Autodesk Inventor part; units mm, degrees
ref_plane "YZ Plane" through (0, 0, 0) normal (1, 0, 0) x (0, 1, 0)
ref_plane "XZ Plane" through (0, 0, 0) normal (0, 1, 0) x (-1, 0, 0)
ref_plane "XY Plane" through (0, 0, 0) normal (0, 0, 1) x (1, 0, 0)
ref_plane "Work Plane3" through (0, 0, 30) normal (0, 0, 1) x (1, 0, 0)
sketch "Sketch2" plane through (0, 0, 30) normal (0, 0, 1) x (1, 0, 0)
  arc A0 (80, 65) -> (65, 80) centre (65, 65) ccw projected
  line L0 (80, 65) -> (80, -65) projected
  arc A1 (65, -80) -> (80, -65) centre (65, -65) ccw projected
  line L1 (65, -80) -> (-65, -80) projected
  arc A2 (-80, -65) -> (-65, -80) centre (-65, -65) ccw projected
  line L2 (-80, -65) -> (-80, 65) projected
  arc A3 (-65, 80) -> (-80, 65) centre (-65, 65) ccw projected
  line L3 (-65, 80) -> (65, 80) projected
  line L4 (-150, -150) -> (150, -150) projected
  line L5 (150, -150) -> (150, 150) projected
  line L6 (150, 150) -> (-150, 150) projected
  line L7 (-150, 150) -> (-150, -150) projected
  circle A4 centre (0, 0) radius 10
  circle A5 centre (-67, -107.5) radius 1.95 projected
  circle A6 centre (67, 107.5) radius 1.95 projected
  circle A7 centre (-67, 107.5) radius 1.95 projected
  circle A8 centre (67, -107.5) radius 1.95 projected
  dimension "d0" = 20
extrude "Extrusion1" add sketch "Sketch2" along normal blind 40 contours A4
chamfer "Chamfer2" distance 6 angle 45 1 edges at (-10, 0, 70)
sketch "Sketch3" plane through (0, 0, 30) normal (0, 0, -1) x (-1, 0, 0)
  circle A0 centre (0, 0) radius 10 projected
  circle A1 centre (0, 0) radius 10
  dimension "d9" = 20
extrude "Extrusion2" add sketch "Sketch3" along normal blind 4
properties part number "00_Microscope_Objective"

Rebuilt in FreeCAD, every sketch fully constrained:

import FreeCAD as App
import Part
import Sketcher


def edges_at(feature, points):
    """Names of the edges that pass closest to the given points."""
    edges = feature.Shape.Edges
    near = lambda p: min(range(len(edges)), key=lambda i: edges[i].distToShape(Part.Vertex(*p))[0])
    return sorted({f"Edge{near(p) + 1}" for p in points})

doc = App.newDocument("Part")
body = doc.addObject("PartDesign::Body", "Body")

sketch1 = body.newObject("Sketcher::SketchObject", "Sketch")
sketch1.AttachmentSupport = (doc.getObject("XY_Plane"), [""])
sketch1.MapMode = "FlatFace"
sketch1.AttachmentOffset = App.Placement(App.Vector(0, 0, 30), App.Rotation())
sketch1.addGeometry(Part.Circle(App.Vector(0, 0, 0), App.Vector(0, 0, 1), 10), False)
sketch1.addConstraint([
    Sketcher.Constraint("Coincident", 0, 3, -1, 1),
    Sketcher.Constraint("Diameter", 0, 20.0),
])
pad1 = body.newObject("PartDesign::Pad", "Pad")
pad1.Profile = sketch1
pad1.Length = 40
doc.recompute()

chamfer = body.newObject("PartDesign::Chamfer", "Chamfer")
chamfer.Base = (pad1, edges_at(pad1, [(-10, 0, 70)]))
chamfer.Size = 6

sketch2 = body.newObject("Sketcher::SketchObject", "Sketch001")
sketch2.AttachmentSupport = (doc.getObject("XY_Plane"), [""])
sketch2.MapMode = "FlatFace"
sketch2.AttachmentOffset = App.Placement(App.Vector(0, 0, 30), App.Rotation())
sketch2.addGeometry(Part.Circle(App.Vector(0, 0, 0), App.Vector(0, 0, 1), 10), False)
sketch2.addConstraint([
    Sketcher.Constraint("Coincident", 0, 3, -1, 1),
    Sketcher.Constraint("Diameter", 0, 20.0),
])
pad2 = body.newObject("PartDesign::Pad", "Pad001")
pad2.Profile = sketch2
pad2.Length = 4
pad2.Reversed = True

doc.recompute()
